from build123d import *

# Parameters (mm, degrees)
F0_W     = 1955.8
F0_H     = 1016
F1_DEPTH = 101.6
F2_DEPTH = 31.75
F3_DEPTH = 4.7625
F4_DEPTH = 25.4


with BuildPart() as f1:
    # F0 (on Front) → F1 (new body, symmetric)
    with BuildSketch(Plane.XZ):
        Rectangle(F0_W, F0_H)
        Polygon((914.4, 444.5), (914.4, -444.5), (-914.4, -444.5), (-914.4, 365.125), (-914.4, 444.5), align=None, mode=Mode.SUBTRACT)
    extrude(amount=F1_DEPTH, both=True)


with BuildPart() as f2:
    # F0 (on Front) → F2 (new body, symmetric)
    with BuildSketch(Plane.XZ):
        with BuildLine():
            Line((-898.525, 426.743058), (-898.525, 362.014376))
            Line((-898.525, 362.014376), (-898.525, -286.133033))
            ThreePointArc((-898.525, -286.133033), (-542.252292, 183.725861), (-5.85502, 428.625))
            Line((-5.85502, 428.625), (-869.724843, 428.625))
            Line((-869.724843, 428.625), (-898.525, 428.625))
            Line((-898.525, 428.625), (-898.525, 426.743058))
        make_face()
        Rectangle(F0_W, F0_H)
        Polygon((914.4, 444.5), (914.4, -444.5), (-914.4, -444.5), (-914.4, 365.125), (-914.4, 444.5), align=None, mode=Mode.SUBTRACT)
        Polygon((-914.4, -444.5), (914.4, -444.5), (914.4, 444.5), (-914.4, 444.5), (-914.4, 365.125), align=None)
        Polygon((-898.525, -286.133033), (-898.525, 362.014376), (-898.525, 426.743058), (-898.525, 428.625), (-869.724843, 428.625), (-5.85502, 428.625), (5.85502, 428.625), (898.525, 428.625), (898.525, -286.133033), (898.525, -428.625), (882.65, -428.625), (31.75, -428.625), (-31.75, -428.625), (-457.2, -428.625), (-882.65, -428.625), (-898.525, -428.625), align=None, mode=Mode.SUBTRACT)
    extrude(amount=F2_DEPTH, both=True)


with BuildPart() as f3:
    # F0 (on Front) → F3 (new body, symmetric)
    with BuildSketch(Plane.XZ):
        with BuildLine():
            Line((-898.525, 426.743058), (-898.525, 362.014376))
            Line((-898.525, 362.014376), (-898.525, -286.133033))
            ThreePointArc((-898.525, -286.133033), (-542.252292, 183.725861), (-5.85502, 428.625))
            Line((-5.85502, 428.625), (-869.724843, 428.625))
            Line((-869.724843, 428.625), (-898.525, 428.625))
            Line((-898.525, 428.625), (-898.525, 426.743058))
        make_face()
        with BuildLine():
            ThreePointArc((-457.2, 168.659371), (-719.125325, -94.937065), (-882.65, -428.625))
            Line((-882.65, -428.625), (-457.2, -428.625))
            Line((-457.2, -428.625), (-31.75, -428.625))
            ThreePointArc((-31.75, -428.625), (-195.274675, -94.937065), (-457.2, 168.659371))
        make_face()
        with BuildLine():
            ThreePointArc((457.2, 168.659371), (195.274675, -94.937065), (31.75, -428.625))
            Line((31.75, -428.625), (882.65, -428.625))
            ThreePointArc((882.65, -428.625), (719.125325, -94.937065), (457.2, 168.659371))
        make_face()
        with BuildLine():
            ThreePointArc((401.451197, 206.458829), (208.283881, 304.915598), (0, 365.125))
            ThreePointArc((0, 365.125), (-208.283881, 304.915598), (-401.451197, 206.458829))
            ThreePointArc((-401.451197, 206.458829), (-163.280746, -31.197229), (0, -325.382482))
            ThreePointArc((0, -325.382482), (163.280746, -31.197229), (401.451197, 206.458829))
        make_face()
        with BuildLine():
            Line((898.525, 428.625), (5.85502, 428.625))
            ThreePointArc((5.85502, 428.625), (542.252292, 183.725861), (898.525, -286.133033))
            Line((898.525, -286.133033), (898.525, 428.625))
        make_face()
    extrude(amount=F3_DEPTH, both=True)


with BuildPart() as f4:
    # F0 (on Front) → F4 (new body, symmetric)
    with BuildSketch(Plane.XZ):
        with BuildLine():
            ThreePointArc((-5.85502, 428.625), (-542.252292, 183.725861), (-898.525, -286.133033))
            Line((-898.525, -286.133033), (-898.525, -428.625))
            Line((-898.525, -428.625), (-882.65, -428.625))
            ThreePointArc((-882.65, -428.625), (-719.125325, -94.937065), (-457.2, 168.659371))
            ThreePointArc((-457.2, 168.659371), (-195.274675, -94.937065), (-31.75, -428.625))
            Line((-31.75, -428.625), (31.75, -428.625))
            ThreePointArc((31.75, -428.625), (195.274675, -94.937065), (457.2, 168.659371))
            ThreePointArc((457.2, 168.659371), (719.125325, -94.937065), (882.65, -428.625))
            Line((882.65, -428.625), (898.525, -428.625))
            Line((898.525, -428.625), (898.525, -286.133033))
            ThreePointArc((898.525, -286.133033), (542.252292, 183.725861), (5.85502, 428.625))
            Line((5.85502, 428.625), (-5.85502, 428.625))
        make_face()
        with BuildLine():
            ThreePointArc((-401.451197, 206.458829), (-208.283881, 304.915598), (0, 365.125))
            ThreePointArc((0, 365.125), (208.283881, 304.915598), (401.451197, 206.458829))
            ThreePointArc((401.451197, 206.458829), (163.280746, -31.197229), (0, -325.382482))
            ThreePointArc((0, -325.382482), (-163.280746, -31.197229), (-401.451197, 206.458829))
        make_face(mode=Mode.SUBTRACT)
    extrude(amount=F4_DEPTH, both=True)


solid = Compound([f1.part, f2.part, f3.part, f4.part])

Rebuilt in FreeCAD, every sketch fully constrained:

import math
import FreeCAD as App
import Part
import Sketcher

V = App.Vector
Q = App.Units.Quantity


def add_polygon(sketch, points):
    """Adds a closed chain of lines whose ends are joined by coincident constraints."""
    first, n = sketch.GeometryCount, len(points)
    for a, b in zip(points, points[1:] + points[:1]):
        sketch.addGeometry(Part.LineSegment(App.Vector(*a, 0), App.Vector(*b, 0)), False)
    for i in range(n):
        sketch.addConstraint(Sketcher.Constraint("Coincident", first + i, 2, first + (i + 1) % n, 1))

doc = App.newDocument("Part")
body = doc.addObject("PartDesign::Body", "Body")

sketch1 = body.newObject("Sketcher::SketchObject", "Sketch")
sketch1.AttachmentSupport = (doc.getObject("XZ_Plane"), [""])
sketch1.MapMode = "FlatFace"
add_polygon(sketch1, [(-978, 508), (-978, -508), (978, -508), (978, 508)])
add_polygon(sketch1, [(-914, 444), (914, 444), (914, -444), (-914, -444)])
sketch1.addConstraint(Sketcher.Constraint("Vertical", 0))
sketch1.addConstraint(Sketcher.Constraint("Horizontal", 1))
sketch1.addConstraint(Sketcher.Constraint("Vertical", 2))
sketch1.addConstraint(Sketcher.Constraint("Horizontal", 3))
sketch1.addConstraint(Sketcher.Constraint("Horizontal", 4))
sketch1.addConstraint(Sketcher.Constraint("Vertical", 5))
sketch1.addConstraint(Sketcher.Constraint("Horizontal", 6))
sketch1.addConstraint(Sketcher.Constraint("Vertical", 7))
sketch1.addConstraint(Sketcher.Constraint("Symmetric", 0, 2, 2, 2, -1, 1))
sketch1.addConstraint(Sketcher.Constraint("Symmetric", 4, 2, 6, 2, -1, 1))
sketch1.addConstraint(Sketcher.Constraint("DistanceX", 1, 1, 1, 2, Q("77 in")))
sketch1.addConstraint(Sketcher.Constraint("DistanceX", 4, 1, 4, 2, Q("72 in")))
sketch1.addConstraint(Sketcher.Constraint("DistanceY", 0, 2, 0, 1, Q("40 in")))
sketch1.addConstraint(Sketcher.Constraint("DistanceY", 5, 2, 5, 1, Q("35 in")))
pad1 = body.newObject("PartDesign::Pad", "Pad")
pad1.Profile = sketch1
pad1.Length = Q("8 in")
pad1.Midplane = True
body2 = doc.addObject("PartDesign::Body", "Body001")

sketch2 = body2.newObject("Sketcher::SketchObject", "Sketch001")
sketch2.AttachmentSupport = (doc.getObject("XZ_Plane001"), [""])
sketch2.MapMode = "FlatFace"
add_polygon(sketch2, [(-978, 508), (-978, -508), (978, -508), (978, 508)])
add_polygon(sketch2, [(-899, -429), (-899, 429), (899, 429), (899, -429)])
sketch2.addConstraint(Sketcher.Constraint("Vertical", 0))
sketch2.addConstraint(Sketcher.Constraint("Horizontal", 1))
sketch2.addConstraint(Sketcher.Constraint("Vertical", 2))
sketch2.addConstraint(Sketcher.Constraint("Horizontal", 3))
sketch2.addConstraint(Sketcher.Constraint("Vertical", 4))
sketch2.addConstraint(Sketcher.Constraint("Horizontal", 5))
sketch2.addConstraint(Sketcher.Constraint("Vertical", 6))
sketch2.addConstraint(Sketcher.Constraint("Horizontal", 7))
sketch2.addConstraint(Sketcher.Constraint("Symmetric", 0, 2, 2, 2, -1, 1))
sketch2.addConstraint(Sketcher.Constraint("Symmetric", 4, 2, 6, 2, -1, 1))
sketch2.addConstraint(Sketcher.Constraint("DistanceX", 1, 1, 1, 2, Q("77 in")))
sketch2.addConstraint(Sketcher.Constraint("DistanceY", 0, 2, 0, 1, Q("40 in")))
sketch2.addConstraint(Sketcher.Constraint("DistanceX", 5, 1, 5, 2, Q("70.75 in")))
sketch2.addConstraint(Sketcher.Constraint("DistanceY", 4, 1, 4, 2, Q("33.75 in")))
pad2 = body2.newObject("PartDesign::Pad", "Pad001")
pad2.Profile = sketch2
pad2.Length = Q("2.5 in")
pad2.Midplane = True
body3 = doc.addObject("PartDesign::Body", "Body002")
body3.AllowCompound = True

sketch3 = body3.newObject("Sketcher::SketchObject", "Sketch002")
sketch3.AttachmentSupport = (doc.getObject("XZ_Plane002"), [""])
sketch3.MapMode = "FlatFace"
sketch3.addGeometry(Part.ArcOfCircle(Part.Circle(V(212, -758, 0), V(0, 0, 1), 1207), math.radians(100), math.radians(157)), False)
sketch3.addGeometry(Part.LineSegment(V(-6, 429, 0), V(-899, 429, 0)), False)
sketch3.addGeometry(Part.LineSegment(V(-899, 429, 0), V(-899, -286, 0)), False)
sketch3.addGeometry(Part.ArcOfCircle(Part.Circle(V(212, -758, 0), V(0, 0, 1), 1143), math.radians(126), math.radians(163)), False)
sketch3.addGeometry(Part.LineSegment(V(-883, -429, 0), V(-32, -429, 0)), False)
sketch3.addGeometry(Part.ArcOfCircle(Part.Circle(V(-1126, -758, 0), V(0, 0, 1), 1143), math.radians(17), math.radians(54)), False)
sketch3.addGeometry(Part.ArcOfCircle(Part.Circle(V(1126, -758, 0), V(0, 0, 1), 1143), math.radians(126), math.radians(163)), False)
sketch3.addGeometry(Part.LineSegment(V(32, -429, 0), V(883, -429, 0)), False)
sketch3.addGeometry(Part.ArcOfCircle(Part.Circle(V(-212, -758, 0), V(0, 0, 1), 1143), math.radians(17), math.radians(54)), False)
sketch3.addGeometry(Part.ArcOfCircle(Part.Circle(V(-212, -758, 0), V(0, 0, 1), 1143), math.radians(58), math.radians(79)), False)
sketch3.addGeometry(Part.ArcOfCircle(Part.Circle(V(212, -758, 0), V(0, 0, 1), 1143), math.radians(101), math.radians(122)), False)
sketch3.addGeometry(Part.ArcOfCircle(Part.Circle(V(-1126, -758, 0), V(0, 0, 1), 1206), math.radians(21), math.radians(53)), False)
sketch3.addGeometry(Part.ArcOfCircle(Part.Circle(V(1126, -758, 0), V(0, 0, 1), 1206), math.radians(127), math.radians(159)), False)
sketch3.addGeometry(Part.LineSegment(V(899, 429, 0), V(6, 429, 0)), False)
sketch3.addGeometry(Part.ArcOfCircle(Part.Circle(V(-212, -758, 0), V(0, 0, 1), 1207), math.radians(23), math.radians(80)), False)
sketch3.addGeometry(Part.LineSegment(V(899, -286, 0), V(899, 429, 0)), False)
sketch3.addConstraint(Sketcher.Constraint("Coincident", 0, 1, 1, 1))
sketch3.addConstraint(Sketcher.Constraint("Coincident", 1, 2, 2, 1))
sketch3.addConstraint(Sketcher.Constraint("Coincident", 2, 2, 0, 2))
sketch3.addConstraint(Sketcher.Constraint("Coincident", 3, 2, 4, 1))
sketch3.addConstraint(Sketcher.Constraint("Coincident", 4, 2, 5, 1))
sketch3.addConstraint(Sketcher.Constraint("Coincident", 5, 2, 3, 1))
sketch3.addConstraint(Sketcher.Constraint("Coincident", 6, 2, 7, 1))
sketch3.addConstraint(Sketcher.Constraint("Coincident", 7, 2, 8, 1))
sketch3.addConstraint(Sketcher.Constraint("Coincident", 8, 2, 6, 1))
sketch3.addConstraint(Sketcher.Constraint("Coincident", 9, 2, 10, 1))
sketch3.addConstraint(Sketcher.Constraint("Coincident", 10, 2, 11, 2))
sketch3.addConstraint(Sketcher.Constraint("Coincident", 11, 1, 12, 2))
sketch3.addConstraint(Sketcher.Constraint("Coincident", 12, 1, 9, 1))
sketch3.addConstraint(Sketcher.Constraint("Coincident", 13, 2, 14, 2))
sketch3.addConstraint(Sketcher.Constraint("Coincident", 14, 1, 15, 1))
sketch3.addConstraint(Sketcher.Constraint("Coincident", 15, 2, 13, 1))
sketch3.addConstraint(Sketcher.Constraint("Horizontal", 1))
sketch3.addConstraint(Sketcher.Constraint("Vertical", 2))
sketch3.addConstraint(Sketcher.Constraint("Horizontal", 4))
sketch3.addConstraint(Sketcher.Constraint("Horizontal", 7))
sketch3.addConstraint(Sketcher.Constraint("Horizontal", 13))
sketch3.addConstraint(Sketcher.Constraint("Vertical", 15))
sketch3.addConstraint(Sketcher.Constraint("Coincident", 11, 3, 5, 3))
sketch3.addConstraint(Sketcher.Constraint("Coincident", 12, 3, 6, 3))
sketch3.addConstraint(Sketcher.Constraint("Equal", 3, 5))
sketch3.addConstraint(Sketcher.Constraint("Equal", 5, 6))
sketch3.addConstraint(Sketcher.Constraint("Equal", 6, 8))
sketch3.addConstraint(Sketcher.Constraint("Equal", 8, 9))
sketch3.addConstraint(Sketcher.Constraint("Equal", 9, 10))
sketch3.addConstraint(Sketcher.Constraint("Equal", 11, 12))
sketch3.addConstraint(Sketcher.Constraint("Equal", 0, 14))
sketch3.addConstraint(Sketcher.Constraint("Symmetric", 5, 3, 6, 3, -2))
sketch3.addConstraint(Sketcher.Constraint("Symmetric", 3, 3, 8, 3, -2))
sketch3.addConstraint(Sketcher.Constraint("Symmetric", 9, 3, 10, 3, -2))
sketch3.addConstraint(Sketcher.Constraint("Symmetric", 0, 3, 14, 3, -2))
sketch3.addConstraint(Sketcher.Constraint("Symmetric", 1, 2, 15, 2, -2))
sketch3.addConstraint(Sketcher.Constraint("Horizontal", 3, 3, 5, 3))
sketch3.addConstraint(Sketcher.Constraint("Equal", 4, 7))
sketch3.addConstraint(Sketcher.Constraint("Radius", 0, Q("47.5000001 in")))
sketch3.addConstraint(Sketcher.Constraint("DistanceX", 4, 1, 4, 2, Q("33.5 in")))
sketch3.addConstraint(Sketcher.Constraint("DistanceX", 3, 3, 6, 3, Q("36 in")))
sketch3.addConstraint(Sketcher.Constraint("DistanceX", 11, 3, 9, 3, Q("35.9999998 in")))
sketch3.addConstraint(Sketcher.Constraint("DistanceY", 9, 2, 0, 1, Q("2.5 in")))
sketch3.addConstraint(Sketcher.Constraint("DistanceY", 4, 2, 9, 2, Q("31.25 in")))
sketch3.addConstraint(Sketcher.Constraint("DistanceX", 1, 2, -1, 1, Q("35.375 in")))
sketch3.addConstraint(Sketcher.Constraint("DistanceY", -1, 1, 1, 2, Q("16.875 in")))
sketch3.addConstraint(Sketcher.Constraint("Radius", 11, 1206.499988))
sketch3.addConstraint(Sketcher.Constraint("Radius", 3, 1142.999985))
sketch3.addConstraint(Sketcher.Constraint("DistanceX", 1, 2, 1, 1, 892.66998))
sketch3.addConstraint(Sketcher.Constraint("DistanceY", 2, 2, 2, 1, 714.758033))
sketch3.addConstraint(Sketcher.Constraint("DistanceX", 9, 3, -1, 1, 211.842381))
pad3 = body3.newObject("PartDesign::Pad", "Pad002")
pad3.Profile = sketch3
pad3.Length = Q("0.375 in")
pad3.Midplane = True
body4 = doc.addObject("PartDesign::Body", "Body003")

sketch4 = body4.newObject("Sketcher::SketchObject", "Sketch003")
sketch4.AttachmentSupport = (doc.getObject("XZ_Plane003"), [""])
sketch4.MapMode = "FlatFace"
sketch4.addGeometry(Part.ArcOfCircle(Part.Circle(V(212, -758, 0), V(0, 0, 1), 1207), math.radians(100), math.radians(157)), False)
sketch4.addGeometry(Part.LineSegment(V(-899, -286, 0), V(-899, -429, 0)), False)
sketch4.addGeometry(Part.LineSegment(V(-899, -429, 0), V(-883, -429, 0)), False)
sketch4.addGeometry(Part.ArcOfCircle(Part.Circle(V(212, -758, 0), V(0, 0, 1), 1143), math.radians(126), math.radians(163)), False)
sketch4.addGeometry(Part.ArcOfCircle(Part.Circle(V(-1126, -758, 0), V(0, 0, 1), 1143), math.radians(17), math.radians(54)), False)
sketch4.addGeometry(Part.LineSegment(V(-32, -429, 0), V(32, -429, 0)), False)
sketch4.addGeometry(Part.ArcOfCircle(Part.Circle(V(1126, -758, 0), V(0, 0, 1), 1143), math.radians(126), math.radians(163)), False)
sketch4.addGeometry(Part.ArcOfCircle(Part.Circle(V(-212, -758, 0), V(0, 0, 1), 1143), math.radians(17), math.radians(54)), False)
sketch4.addGeometry(Part.LineSegment(V(883, -429, 0), V(899, -429, 0)), False)
sketch4.addGeometry(Part.LineSegment(V(899, -429, 0), V(899, -286, 0)), False)
sketch4.addGeometry(Part.ArcOfCircle(Part.Circle(V(-212, -758, 0), V(0, 0, 1), 1207), math.radians(23), math.radians(80)), False)
sketch4.addGeometry(Part.LineSegment(V(6, 429, 0), V(-6, 429, 0)), False)
sketch4.addGeometry(Part.ArcOfCircle(Part.Circle(V(-1126, -758, 0), V(0, 0, 1), 1206), math.radians(21), math.radians(53)), False)
sketch4.addGeometry(Part.ArcOfCircle(Part.Circle(V(212, -758, 0), V(0, 0, 1), 1143), math.radians(101), math.radians(122)), False)
sketch4.addGeometry(Part.ArcOfCircle(Part.Circle(V(-212, -758, 0), V(0, 0, 1), 1143), math.radians(58), math.radians(79)), False)
sketch4.addGeometry(Part.ArcOfCircle(Part.Circle(V(1126, -758, 0), V(0, 0, 1), 1206), math.radians(127), math.radians(159)), False)
sketch4.addConstraint(Sketcher.Constraint("Coincident", 0, 2, 1, 1))
sketch4.addConstraint(Sketcher.Constraint("Coincident", 1, 2, 2, 1))
sketch4.addConstraint(Sketcher.Constraint("Coincident", 2, 2, 3, 2))
sketch4.addConstraint(Sketcher.Constraint("Coincident", 3, 1, 4, 2))
sketch4.addConstraint(Sketcher.Constraint("Coincident", 4, 1, 5, 1))
sketch4.addConstraint(Sketcher.Constraint("Coincident", 5, 2, 6, 2))
sketch4.addConstraint(Sketcher.Constraint("Coincident", 6, 1, 7, 2))
sketch4.addConstraint(Sketcher.Constraint("Coincident", 7, 1, 8, 1))
sketch4.addConstraint(Sketcher.Constraint("Coincident", 8, 2, 9, 1))
sketch4.addConstraint(Sketcher.Constraint("Coincident", 9, 2, 10, 1))
sketch4.addConstraint(Sketcher.Constraint("Coincident", 10, 2, 11, 1))
sketch4.addConstraint(Sketcher.Constraint("Coincident", 11, 2, 0, 1))
sketch4.addConstraint(Sketcher.Constraint("Coincident", 12, 2, 13, 2))
sketch4.addConstraint(Sketcher.Constraint("Coincident", 13, 1, 14, 2))
sketch4.addConstraint(Sketcher.Constraint("Coincident", 14, 1, 15, 1))
sketch4.addConstraint(Sketcher.Constraint("Coincident", 15, 2, 12, 1))
sketch4.addConstraint(Sketcher.Constraint("Vertical", 1))
sketch4.addConstraint(Sketcher.Constraint("Horizontal", 2))
sketch4.addConstraint(Sketcher.Constraint("Horizontal", 5))
sketch4.addConstraint(Sketcher.Constraint("Horizontal", 8))
sketch4.addConstraint(Sketcher.Constraint("Vertical", 9))
sketch4.addConstraint(Sketcher.Constraint("Horizontal", 11))
sketch4.addConstraint(Sketcher.Constraint("Coincident", 12, 3, 4, 3))
sketch4.addConstraint(Sketcher.Constraint("Coincident", 15, 3, 6, 3))
sketch4.addConstraint(Sketcher.Constraint("Equal", 3, 4))
sketch4.addConstraint(Sketcher.Constraint("Equal", 4, 6))
sketch4.addConstraint(Sketcher.Constraint("Equal", 6, 7))
sketch4.addConstraint(Sketcher.Constraint("Equal", 0, 10))
sketch4.addConstraint(Sketcher.Constraint("Equal", 7, 13))
sketch4.addConstraint(Sketcher.Constraint("Equal", 13, 14))
sketch4.addConstraint(Sketcher.Constraint("Equal", 12, 15))
sketch4.addConstraint(Sketcher.Constraint("Symmetric", 4, 3, 6, 3, -2))
sketch4.addConstraint(Sketcher.Constraint("Symmetric", 3, 3, 7, 3, -2))
sketch4.addConstraint(Sketcher.Constraint("Symmetric", 0, 3, 10, 3, -2))
sketch4.addConstraint(Sketcher.Constraint("Symmetric", 13, 3, 14, 3, -2))
sketch4.addConstraint(Sketcher.Constraint("Symmetric", 1, 2, 8, 2, -2))
sketch4.addConstraint(Sketcher.Constraint("Horizontal", 3, 3, 4, 3))
sketch4.addConstraint(Sketcher.Constraint("Radius", 0, Q("47.5000001 in")))
sketch4.addConstraint(Sketcher.Constraint("DistanceX", 5, 1, 5, 2, Q("2.5 in")))
sketch4.addConstraint(Sketcher.Constraint("DistanceX", 3, 3, 6, 3, Q("36 in")))
sketch4.addConstraint(Sketcher.Constraint("DistanceX", 13, 3, 15, 3, Q("35.9999998 in")))
sketch4.addConstraint(Sketcher.Constraint("DistanceY", 13, 1, 11, 2, Q("2.5 in")))
sketch4.addConstraint(Sketcher.Constraint("DistanceX", 2, 1, 2, 2, Q("0.625 in")))
sketch4.addConstraint(Sketcher.Constraint("DistanceX", 2, 2, -1, 1, Q("34.75 in")))
sketch4.addConstraint(Sketcher.Constraint("DistanceY", 5, 2, 10, 2, Q("33.75 in")))
sketch4.addConstraint(Sketcher.Constraint("DistanceY", 1, 2, -1, 1, Q("16.875 in")))
sketch4.addConstraint(Sketcher.Constraint("Radius", 12, 1206.499988))
sketch4.addConstraint(Sketcher.Constraint("Radius", 3, 1142.999985))
sketch4.addConstraint(Sketcher.Constraint("DistanceX", 11, 2, 11, 1, 11.71004))
sketch4.addConstraint(Sketcher.Constraint("DistanceY", 1, 2, 1, 1, 142.491967))
sketch4.addConstraint(Sketcher.Constraint("DistanceX", -1, 1, 13, 3, 211.842381))
pad4 = body4.newObject("PartDesign::Pad", "Pad003")
pad4.Profile = sketch4
pad4.Length = Q("2 in")
pad4.Midplane = True

doc.recompute()
